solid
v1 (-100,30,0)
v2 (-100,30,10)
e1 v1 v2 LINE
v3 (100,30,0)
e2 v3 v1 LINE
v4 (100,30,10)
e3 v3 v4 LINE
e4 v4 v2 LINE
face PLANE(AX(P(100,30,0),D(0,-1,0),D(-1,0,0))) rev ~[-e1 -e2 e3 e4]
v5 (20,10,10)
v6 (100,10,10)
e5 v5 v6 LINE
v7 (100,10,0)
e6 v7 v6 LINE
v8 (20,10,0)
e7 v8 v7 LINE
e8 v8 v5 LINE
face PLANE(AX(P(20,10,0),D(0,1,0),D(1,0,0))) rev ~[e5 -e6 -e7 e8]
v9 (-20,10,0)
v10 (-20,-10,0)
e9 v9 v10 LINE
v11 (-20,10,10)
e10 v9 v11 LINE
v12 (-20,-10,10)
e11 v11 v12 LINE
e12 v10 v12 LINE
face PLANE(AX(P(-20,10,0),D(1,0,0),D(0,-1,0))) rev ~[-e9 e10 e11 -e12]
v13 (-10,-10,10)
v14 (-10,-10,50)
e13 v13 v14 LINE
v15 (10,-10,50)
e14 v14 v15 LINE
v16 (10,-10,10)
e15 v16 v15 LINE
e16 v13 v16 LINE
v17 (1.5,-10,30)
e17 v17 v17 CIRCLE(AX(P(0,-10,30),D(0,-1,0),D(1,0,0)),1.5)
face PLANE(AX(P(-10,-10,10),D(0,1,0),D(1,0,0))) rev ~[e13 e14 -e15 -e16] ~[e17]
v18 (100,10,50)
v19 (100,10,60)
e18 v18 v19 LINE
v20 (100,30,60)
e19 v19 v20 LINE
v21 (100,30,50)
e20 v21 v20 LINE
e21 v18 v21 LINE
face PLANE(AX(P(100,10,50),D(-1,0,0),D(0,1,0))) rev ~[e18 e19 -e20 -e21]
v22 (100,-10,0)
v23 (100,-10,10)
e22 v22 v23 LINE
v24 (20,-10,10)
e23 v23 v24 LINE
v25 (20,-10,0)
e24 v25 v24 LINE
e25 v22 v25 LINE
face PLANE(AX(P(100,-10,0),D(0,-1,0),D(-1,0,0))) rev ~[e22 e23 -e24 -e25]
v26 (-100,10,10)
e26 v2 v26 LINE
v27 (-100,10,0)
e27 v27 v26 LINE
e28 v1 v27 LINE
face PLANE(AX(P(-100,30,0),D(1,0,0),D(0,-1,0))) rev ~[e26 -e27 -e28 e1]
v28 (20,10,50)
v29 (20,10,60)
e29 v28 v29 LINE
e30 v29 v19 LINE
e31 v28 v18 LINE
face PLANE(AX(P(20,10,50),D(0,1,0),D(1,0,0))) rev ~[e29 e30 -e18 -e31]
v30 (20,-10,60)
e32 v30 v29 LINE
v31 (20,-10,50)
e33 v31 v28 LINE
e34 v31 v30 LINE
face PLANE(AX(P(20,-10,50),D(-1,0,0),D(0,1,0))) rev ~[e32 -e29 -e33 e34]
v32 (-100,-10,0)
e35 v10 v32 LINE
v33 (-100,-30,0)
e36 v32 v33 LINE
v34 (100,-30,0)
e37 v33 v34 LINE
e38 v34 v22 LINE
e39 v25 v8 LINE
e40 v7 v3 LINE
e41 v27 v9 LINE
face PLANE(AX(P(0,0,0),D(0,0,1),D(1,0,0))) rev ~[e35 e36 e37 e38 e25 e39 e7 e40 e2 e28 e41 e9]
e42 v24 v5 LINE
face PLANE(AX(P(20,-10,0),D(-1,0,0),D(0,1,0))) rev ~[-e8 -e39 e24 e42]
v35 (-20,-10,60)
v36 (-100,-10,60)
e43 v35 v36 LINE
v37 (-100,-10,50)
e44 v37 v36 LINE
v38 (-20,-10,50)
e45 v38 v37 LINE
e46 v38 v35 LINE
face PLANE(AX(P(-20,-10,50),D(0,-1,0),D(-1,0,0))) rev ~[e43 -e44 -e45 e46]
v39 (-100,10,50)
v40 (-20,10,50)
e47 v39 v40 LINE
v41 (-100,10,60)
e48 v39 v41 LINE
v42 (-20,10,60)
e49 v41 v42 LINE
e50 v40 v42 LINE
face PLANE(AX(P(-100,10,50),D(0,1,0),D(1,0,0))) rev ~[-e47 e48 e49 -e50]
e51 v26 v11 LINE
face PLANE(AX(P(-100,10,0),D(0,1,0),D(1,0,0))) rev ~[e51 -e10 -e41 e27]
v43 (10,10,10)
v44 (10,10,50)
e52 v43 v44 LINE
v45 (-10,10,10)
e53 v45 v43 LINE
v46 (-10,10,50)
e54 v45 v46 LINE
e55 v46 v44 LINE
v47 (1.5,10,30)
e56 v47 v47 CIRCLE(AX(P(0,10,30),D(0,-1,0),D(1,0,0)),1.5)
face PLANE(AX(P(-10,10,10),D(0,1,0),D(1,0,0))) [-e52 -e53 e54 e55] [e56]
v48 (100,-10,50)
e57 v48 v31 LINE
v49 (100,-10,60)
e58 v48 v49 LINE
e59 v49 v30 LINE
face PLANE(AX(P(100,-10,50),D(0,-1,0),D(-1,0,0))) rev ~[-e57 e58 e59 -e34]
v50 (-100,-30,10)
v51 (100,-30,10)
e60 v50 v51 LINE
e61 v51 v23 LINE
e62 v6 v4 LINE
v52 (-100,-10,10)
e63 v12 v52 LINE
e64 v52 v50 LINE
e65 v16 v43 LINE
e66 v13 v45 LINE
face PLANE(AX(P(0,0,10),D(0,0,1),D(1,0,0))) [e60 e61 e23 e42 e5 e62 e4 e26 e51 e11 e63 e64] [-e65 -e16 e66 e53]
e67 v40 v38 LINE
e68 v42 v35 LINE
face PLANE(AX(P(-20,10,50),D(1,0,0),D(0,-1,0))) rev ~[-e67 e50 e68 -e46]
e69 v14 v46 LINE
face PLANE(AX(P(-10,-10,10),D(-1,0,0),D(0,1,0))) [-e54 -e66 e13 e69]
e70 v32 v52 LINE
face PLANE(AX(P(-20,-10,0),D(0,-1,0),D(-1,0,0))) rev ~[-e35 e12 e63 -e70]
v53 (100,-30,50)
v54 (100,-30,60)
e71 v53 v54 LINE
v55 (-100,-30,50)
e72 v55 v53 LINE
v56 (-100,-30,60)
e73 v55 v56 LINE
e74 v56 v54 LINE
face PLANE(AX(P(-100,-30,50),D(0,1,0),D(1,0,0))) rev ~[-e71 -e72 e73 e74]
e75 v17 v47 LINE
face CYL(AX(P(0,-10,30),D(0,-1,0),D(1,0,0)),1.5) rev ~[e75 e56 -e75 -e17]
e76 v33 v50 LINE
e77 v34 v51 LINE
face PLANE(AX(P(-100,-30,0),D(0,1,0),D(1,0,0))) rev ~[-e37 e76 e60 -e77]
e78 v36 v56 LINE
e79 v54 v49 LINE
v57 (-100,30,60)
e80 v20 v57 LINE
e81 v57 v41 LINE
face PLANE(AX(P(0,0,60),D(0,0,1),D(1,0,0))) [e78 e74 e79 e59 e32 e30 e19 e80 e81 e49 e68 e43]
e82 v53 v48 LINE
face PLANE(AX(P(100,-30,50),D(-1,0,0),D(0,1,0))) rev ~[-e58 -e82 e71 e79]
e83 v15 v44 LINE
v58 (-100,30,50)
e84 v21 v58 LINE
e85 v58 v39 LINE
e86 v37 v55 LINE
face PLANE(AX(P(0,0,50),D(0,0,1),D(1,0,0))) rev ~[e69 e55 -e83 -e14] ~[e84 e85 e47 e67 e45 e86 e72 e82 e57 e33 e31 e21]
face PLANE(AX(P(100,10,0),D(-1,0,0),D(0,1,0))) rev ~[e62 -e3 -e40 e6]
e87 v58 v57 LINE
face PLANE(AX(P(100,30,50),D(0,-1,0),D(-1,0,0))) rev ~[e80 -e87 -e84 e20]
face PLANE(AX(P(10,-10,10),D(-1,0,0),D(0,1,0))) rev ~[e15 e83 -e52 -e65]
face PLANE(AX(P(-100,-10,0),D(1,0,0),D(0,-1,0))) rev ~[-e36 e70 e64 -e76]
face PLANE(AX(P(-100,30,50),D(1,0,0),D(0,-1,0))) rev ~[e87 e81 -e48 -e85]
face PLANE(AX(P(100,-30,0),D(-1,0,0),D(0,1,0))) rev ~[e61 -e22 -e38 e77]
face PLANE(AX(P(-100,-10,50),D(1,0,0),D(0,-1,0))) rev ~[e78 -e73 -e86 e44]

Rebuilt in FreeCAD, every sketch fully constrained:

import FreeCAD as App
import Part
import Sketcher

V = App.Vector


def add_polygon(sketch, points):
    """Adds a closed chain of lines whose ends are joined by coincident constraints."""
    first, n = sketch.GeometryCount, len(points)
    for a, b in zip(points, points[1:] + points[:1]):
        sketch.addGeometry(Part.LineSegment(App.Vector(*a, 0), App.Vector(*b, 0)), False)
    for i in range(n):
        sketch.addConstraint(Sketcher.Constraint("Coincident", first + i, 2, first + (i + 1) % n, 1))

doc = App.newDocument("Part")
body = doc.addObject("PartDesign::Body", "Body")

sketch1 = body.newObject("Sketcher::SketchObject", "Sketch")
sketch1.AttachmentSupport = (doc.getObject("XY_Plane"), [""])
sketch1.MapMode = "FlatFace"
add_polygon(sketch1, [(-100, -10), (-100, -30), (100, -30), (100, -10), (20, -10), (20, 10), (100, 10), (100, 30), (-100, 30), (-100, 10), (-20, 10), (-20, -10)])
sketch1.addConstraint([
    Sketcher.Constraint("Vertical", 0),
    Sketcher.Constraint("Horizontal", 1),
    Sketcher.Constraint("Vertical", 2),
    Sketcher.Constraint("Horizontal", 3),
    Sketcher.Constraint("Vertical", 4),
    Sketcher.Constraint("Horizontal", 5),
    Sketcher.Constraint("Vertical", 6),
    Sketcher.Constraint("Horizontal", 7),
    Sketcher.Constraint("Vertical", 8),
    Sketcher.Constraint("Horizontal", 9),
    Sketcher.Constraint("Vertical", 10),
    Sketcher.Constraint("Horizontal", 11),
    Sketcher.Constraint("Symmetric", 0, 2, 6, 2, -1, 1),
    Sketcher.Constraint("Symmetric", 2, 2, 8, 2, -1, 1),
    Sketcher.Constraint("Symmetric", 4, 2, 10, 2, -1, 1),
    Sketcher.Constraint("Symmetric", 5, 2, 8, 2, -2),
    Sketcher.Constraint("Equal", 2, 4),
    Sketcher.Constraint("DistanceX", 1, 1, 1, 2, 200.0),
    Sketcher.Constraint("DistanceX", 3, 2, 3, 1, 80.0),
    Sketcher.Constraint("DistanceY", 0, 2, 0, 1, 20.0),
])
pad1 = body.newObject("PartDesign::Pad", "Pad")
pad1.Profile = sketch1
pad1.Length = 10

sketch2 = body.newObject("Sketcher::SketchObject", "Sketch001")
sketch2.AttachmentSupport = (doc.getObject("XY_Plane"), [""])
sketch2.MapMode = "FlatFace"
sketch2.AttachmentOffset = App.Placement(V(0, 0, 10), App.Rotation())
add_polygon(sketch2, [(-10, 10), (-10, -10), (10, -10), (10, 10)])
sketch2.addConstraint([
    Sketcher.Constraint("Vertical", 0),
    Sketcher.Constraint("Horizontal", 1),
    Sketcher.Constraint("Vertical", 2),
    Sketcher.Constraint("Horizontal", 3),
    Sketcher.Constraint("Symmetric", 0, 2, 2, 2, -1, 1),
    Sketcher.Constraint("Equal", 3, 0),
    Sketcher.Constraint("DistanceX", 1, 1, 1, 2, 20.0),
])
pad2 = body.newObject("PartDesign::Pad", "Pad001")
pad2.Profile = sketch2
pad2.Length = 40

sketch3 = body.newObject("Sketcher::SketchObject", "Sketch002")
sketch3.AttachmentSupport = (doc.getObject("XZ_Plane"), [""])
sketch3.MapMode = "FlatFace"
sketch3.AttachmentOffset = App.Placement(V(0, 0, 10), App.Rotation())
sketch3.addGeometry(Part.Circle(V(0, 30, 0), V(0, 0, 1), 1.5), False)
sketch3.addConstraint([
    Sketcher.Constraint("PointOnObject", 0, 3, -2),
    Sketcher.Constraint("Diameter", 0, 3.0),
    Sketcher.Constraint("DistanceY", -1, 1, 0, 3, 30.0),
])
pocket1 = body.newObject("PartDesign::Pocket", "Pocket")
pocket1.Profile = sketch3
pocket1.Length = 20

sketch4 = body.newObject("Sketcher::SketchObject", "Sketch003")
sketch4.AttachmentSupport = (doc.getObject("XY_Plane"), [""])
sketch4.MapMode = "FlatFace"
sketch4.AttachmentOffset = App.Placement(V(0, 0, 50), App.Rotation())
add_polygon(sketch4, [(-20, 10), (-20, -10), (-100, -10), (-100, -30), (100, -30), (100, -10), (20, -10), (20, 10), (100, 10), (100, 30), (-100, 30), (-100, 10)])
sketch4.addConstraint([
    Sketcher.Constraint("Vertical", 0),
    Sketcher.Constraint("Horizontal", 1),
    Sketcher.Constraint("Vertical", 2),
    Sketcher.Constraint("Horizontal", 3),
    Sketcher.Constraint("Vertical", 4),
    Sketcher.Constraint("Horizontal", 5),
    Sketcher.Constraint("Vertical", 6),
    Sketcher.Constraint("Horizontal", 7),
    Sketcher.Constraint("Vertical", 8),
    Sketcher.Constraint("Horizontal", 9),
    Sketcher.Constraint("Vertical", 10),
    Sketcher.Constraint("Horizontal", 11),
    Sketcher.Constraint("Symmetric", 0, 2, 6, 2, -1, 1),
    Sketcher.Constraint("Symmetric", 2, 2, 8, 2, -1, 1),
    Sketcher.Constraint("Symmetric", 4, 2, 10, 2, -1, 1),
    Sketcher.Constraint("Symmetric", 1, 2, 4, 2, -2),
    Sketcher.Constraint("Equal", 0, 2),
    Sketcher.Constraint("DistanceX", 1, 2, 1, 1, 80.0),
    Sketcher.Constraint("DistanceX", 3, 1, 3, 2, 200.0),
    Sketcher.Constraint("DistanceY", 0, 2, 0, 1, 20.0),
])
pad3 = body.newObject("PartDesign::Pad", "Pad002")
pad3.Profile = sketch4
pad3.Length = 10

doc.recompute()
